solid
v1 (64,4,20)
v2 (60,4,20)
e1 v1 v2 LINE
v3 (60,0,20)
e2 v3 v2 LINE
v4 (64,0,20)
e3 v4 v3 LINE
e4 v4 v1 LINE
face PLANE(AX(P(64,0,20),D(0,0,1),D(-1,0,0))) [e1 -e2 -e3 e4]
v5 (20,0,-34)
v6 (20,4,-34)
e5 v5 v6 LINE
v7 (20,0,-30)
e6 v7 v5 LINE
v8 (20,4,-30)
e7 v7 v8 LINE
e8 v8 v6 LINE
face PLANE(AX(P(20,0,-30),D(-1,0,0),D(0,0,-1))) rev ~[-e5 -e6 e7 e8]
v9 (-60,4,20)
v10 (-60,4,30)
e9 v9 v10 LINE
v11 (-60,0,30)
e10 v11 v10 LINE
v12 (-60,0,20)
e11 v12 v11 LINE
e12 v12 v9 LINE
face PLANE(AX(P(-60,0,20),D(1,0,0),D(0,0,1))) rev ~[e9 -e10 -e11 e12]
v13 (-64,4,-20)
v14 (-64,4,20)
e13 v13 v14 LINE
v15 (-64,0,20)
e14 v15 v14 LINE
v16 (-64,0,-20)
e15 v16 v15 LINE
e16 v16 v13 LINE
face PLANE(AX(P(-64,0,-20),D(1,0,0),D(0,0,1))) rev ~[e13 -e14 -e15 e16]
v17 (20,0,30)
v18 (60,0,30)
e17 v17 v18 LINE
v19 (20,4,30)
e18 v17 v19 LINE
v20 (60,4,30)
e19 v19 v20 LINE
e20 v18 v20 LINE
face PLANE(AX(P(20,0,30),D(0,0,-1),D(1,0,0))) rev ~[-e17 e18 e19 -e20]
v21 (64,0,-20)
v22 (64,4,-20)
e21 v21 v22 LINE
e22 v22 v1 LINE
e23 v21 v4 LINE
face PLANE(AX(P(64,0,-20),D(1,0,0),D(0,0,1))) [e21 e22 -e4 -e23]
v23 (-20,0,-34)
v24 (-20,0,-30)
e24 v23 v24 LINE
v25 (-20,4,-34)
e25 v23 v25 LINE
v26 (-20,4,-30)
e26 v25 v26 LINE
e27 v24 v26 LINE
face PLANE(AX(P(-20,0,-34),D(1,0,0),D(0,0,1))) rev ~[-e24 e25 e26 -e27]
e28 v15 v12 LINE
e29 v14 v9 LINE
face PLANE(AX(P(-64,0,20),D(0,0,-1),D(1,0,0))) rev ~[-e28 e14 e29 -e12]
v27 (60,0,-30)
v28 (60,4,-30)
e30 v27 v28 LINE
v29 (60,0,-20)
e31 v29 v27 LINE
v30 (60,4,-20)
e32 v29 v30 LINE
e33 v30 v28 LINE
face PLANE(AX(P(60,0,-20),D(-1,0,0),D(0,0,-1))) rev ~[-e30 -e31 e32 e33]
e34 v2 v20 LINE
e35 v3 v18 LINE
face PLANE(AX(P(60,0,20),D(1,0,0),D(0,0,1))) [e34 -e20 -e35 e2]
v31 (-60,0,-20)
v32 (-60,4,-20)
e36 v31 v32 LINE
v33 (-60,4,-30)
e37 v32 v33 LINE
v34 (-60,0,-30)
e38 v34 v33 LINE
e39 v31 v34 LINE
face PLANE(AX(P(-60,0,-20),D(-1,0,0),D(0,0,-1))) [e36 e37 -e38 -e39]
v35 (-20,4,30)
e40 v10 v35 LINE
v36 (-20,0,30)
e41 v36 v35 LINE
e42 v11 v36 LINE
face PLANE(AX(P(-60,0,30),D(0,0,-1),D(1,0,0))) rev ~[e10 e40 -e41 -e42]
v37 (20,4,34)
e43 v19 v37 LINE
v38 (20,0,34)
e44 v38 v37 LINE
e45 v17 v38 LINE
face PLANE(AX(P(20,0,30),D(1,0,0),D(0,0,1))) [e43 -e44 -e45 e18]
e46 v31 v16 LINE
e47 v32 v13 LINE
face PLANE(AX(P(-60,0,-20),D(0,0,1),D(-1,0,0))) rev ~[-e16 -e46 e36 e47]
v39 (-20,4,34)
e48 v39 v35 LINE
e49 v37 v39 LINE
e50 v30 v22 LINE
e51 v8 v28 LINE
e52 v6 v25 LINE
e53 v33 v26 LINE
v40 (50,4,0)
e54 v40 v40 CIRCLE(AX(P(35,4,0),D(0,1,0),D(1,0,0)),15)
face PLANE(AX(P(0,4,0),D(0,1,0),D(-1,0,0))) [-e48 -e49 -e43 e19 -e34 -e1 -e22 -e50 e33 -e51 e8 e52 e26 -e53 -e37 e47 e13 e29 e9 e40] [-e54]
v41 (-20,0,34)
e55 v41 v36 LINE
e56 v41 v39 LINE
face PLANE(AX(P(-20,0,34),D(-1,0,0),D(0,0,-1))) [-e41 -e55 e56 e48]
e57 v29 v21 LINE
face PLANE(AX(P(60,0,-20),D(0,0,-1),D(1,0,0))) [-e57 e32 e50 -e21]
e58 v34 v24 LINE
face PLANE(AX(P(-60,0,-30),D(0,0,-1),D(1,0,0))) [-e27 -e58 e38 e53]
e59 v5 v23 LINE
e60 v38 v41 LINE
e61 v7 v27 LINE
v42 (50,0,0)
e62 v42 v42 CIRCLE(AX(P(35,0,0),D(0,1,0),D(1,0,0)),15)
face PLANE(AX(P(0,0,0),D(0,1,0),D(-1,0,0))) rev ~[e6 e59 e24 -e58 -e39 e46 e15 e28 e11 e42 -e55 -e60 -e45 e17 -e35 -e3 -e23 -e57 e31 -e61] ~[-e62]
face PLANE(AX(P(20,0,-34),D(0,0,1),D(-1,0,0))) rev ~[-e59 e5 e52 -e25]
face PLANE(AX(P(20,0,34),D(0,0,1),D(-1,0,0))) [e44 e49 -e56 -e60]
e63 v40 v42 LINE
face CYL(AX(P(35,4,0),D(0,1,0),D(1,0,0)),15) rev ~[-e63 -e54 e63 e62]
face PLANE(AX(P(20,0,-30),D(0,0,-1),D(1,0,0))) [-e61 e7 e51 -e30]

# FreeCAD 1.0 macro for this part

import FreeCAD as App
import Part
import Sketcher

V = App.Vector


def add_polygon(sketch, points):
    """Adds a closed chain of lines whose ends are joined by coincident constraints."""
    first, n = sketch.GeometryCount, len(points)
    for a, b in zip(points, points[1:] + points[:1]):
        sketch.addGeometry(Part.LineSegment(App.Vector(*a, 0), App.Vector(*b, 0)), False)
    for i in range(n):
        sketch.addConstraint(Sketcher.Constraint("Coincident", first + i, 2, first + (i + 1) % n, 1))

doc = App.newDocument("Part")
body = doc.addObject("PartDesign::Body", "Body")

# Sketch on XZ plane
sketch1 = body.newObject("Sketcher::SketchObject", "Sketch")
sketch1.AttachmentSupport = (doc.getObject("XZ_Plane"), [""])
sketch1.MapMode = "FlatFace"
add_polygon(sketch1, [(20, 34), (20, 30), (60, 30), (60, 20), (64, 20), (64, -20), (60, -20), (60, -30), (20, -30), (20, -34), (-20, -34), (-20, -30), (-60, -30), (-60, -20), (-64, -20), (-64, 20), (-60, 20), (-60, 30), (-20, 30), (-20, 34)])  # lines 0-19
sketch1.addConstraint([
    Sketcher.Constraint("Vertical", 0),
    Sketcher.Constraint("Horizontal", 1),
    Sketcher.Constraint("Vertical", 2),
    Sketcher.Constraint("Horizontal", 3),
    Sketcher.Constraint("Vertical", 4),
    Sketcher.Constraint("Horizontal", 5),
    Sketcher.Constraint("Vertical", 6),
    Sketcher.Constraint("Horizontal", 7),
    Sketcher.Constraint("Vertical", 8),
    Sketcher.Constraint("Horizontal", 9),
    Sketcher.Constraint("Vertical", 10),
    Sketcher.Constraint("Horizontal", 11),
    Sketcher.Constraint("Vertical", 12),
    Sketcher.Constraint("Horizontal", 13),
    Sketcher.Constraint("Vertical", 14),
    Sketcher.Constraint("Horizontal", 15),
    Sketcher.Constraint("Vertical", 16),
    Sketcher.Constraint("Horizontal", 17),
    Sketcher.Constraint("Vertical", 18),
    Sketcher.Constraint("Horizontal", 19),
    Sketcher.Constraint("Symmetric", 0, 2, 10, 2, -1, 1),
    Sketcher.Constraint("Symmetric", 2, 2, 12, 2, -1, 1),
    Sketcher.Constraint("Symmetric", 4, 2, 14, 2, -1, 1),
    Sketcher.Constraint("Symmetric", 6, 2, 16, 2, -1, 1),
    Sketcher.Constraint("Symmetric", 8, 2, 18, 2, -1, 1),
    Sketcher.Constraint("Symmetric", 7, 2, 10, 2, -2),
    Sketcher.Constraint("Symmetric", 5, 2, 12, 2, -2),
    Sketcher.Constraint("Equal", 7, 9),
    Sketcher.Constraint("Equal", 15, 0),
    Sketcher.Constraint("Equal", 19, 4),
    Sketcher.Constraint("DistanceX", 1, 1, 1, 2, 40.0),
    Sketcher.Constraint("DistanceX", 3, 1, 3, 2, 4.0),
    Sketcher.Constraint("DistanceY", 6, 2, 1, 2, 60.0),
])
pad1 = body.newObject("PartDesign::Pad", "Pad")
pad1.Profile = sketch1
pad1.Length = 4
pad1.Reversed = True

# Sketch on XZ plane
sketch2 = body.newObject("Sketcher::SketchObject", "Sketch001")
sketch2.AttachmentSupport = (doc.getObject("XZ_Plane"), [""])
sketch2.MapMode = "FlatFace"
sketch2.AttachmentOffset = App.Placement(V(0, 0, -4), App.Rotation())
sketch2.addGeometry(Part.Circle(V(35, 0, 0), V(0, 0, 1), 15), False)
sketch2.addConstraint([
    Sketcher.Constraint("PointOnObject", 0, 3, -1),
    Sketcher.Constraint("Diameter", 0, 30.0),
    Sketcher.Constraint("DistanceX", -1, 1, 0, 3, 35.0),
])
pocket1 = body.newObject("PartDesign::Pocket", "Pocket")
pocket1.Profile = sketch2
pocket1.Length = 4
pocket1.Reversed = True

doc.recompute()
